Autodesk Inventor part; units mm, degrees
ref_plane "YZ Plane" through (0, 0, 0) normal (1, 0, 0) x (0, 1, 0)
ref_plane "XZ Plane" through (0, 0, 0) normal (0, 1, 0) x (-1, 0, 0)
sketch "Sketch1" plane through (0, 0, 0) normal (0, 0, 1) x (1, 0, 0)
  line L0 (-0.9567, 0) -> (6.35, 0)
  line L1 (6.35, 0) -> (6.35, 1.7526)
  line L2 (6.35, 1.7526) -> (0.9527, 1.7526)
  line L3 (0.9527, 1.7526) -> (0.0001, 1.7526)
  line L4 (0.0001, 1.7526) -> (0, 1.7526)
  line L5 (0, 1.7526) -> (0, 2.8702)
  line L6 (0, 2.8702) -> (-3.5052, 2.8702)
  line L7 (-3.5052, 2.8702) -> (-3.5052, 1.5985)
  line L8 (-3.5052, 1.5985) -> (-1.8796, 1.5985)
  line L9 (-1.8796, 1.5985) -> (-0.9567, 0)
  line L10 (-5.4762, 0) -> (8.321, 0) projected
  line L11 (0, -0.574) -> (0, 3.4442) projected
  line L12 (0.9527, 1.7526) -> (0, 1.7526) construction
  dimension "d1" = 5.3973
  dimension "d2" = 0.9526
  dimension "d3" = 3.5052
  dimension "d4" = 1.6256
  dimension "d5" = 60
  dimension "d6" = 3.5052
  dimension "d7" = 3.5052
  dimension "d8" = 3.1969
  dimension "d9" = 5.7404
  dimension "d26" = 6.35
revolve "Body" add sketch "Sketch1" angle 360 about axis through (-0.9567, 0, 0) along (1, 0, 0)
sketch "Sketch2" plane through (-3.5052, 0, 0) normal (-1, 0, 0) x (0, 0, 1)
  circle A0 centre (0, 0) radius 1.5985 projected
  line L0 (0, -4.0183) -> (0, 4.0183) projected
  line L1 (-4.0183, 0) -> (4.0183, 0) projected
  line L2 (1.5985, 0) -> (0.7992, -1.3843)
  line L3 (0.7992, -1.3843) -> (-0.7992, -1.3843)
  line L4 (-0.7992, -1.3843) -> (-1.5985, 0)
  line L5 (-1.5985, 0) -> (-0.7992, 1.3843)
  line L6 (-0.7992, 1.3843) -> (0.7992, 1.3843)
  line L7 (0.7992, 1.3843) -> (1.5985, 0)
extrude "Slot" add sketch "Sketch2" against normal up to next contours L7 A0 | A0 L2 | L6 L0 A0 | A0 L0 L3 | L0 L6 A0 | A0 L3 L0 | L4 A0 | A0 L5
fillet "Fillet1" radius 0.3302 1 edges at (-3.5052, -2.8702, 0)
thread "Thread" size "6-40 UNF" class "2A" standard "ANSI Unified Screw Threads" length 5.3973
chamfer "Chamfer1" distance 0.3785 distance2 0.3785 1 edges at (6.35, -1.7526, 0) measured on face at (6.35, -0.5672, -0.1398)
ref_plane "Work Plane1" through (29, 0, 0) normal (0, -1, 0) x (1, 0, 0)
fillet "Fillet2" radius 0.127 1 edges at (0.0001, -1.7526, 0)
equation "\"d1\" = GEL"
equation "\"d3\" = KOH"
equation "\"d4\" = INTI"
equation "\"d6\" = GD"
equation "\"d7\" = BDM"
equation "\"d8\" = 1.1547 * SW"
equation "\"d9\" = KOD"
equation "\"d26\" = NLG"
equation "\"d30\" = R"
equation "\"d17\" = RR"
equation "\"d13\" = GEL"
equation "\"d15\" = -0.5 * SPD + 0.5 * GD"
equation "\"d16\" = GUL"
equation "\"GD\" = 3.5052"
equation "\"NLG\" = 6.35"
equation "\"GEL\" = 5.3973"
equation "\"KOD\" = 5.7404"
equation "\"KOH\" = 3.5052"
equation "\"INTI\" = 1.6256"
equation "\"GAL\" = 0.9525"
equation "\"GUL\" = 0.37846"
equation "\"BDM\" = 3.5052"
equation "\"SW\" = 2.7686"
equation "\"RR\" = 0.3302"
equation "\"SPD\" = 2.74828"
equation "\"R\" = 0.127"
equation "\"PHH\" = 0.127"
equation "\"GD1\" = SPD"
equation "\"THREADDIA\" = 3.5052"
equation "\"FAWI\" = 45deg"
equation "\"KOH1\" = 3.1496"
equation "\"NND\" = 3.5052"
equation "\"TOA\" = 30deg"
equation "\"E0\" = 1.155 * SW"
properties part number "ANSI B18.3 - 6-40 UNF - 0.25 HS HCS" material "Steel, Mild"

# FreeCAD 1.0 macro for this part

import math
import FreeCAD as App
import Part
import Sketcher

V = App.Vector
Q = App.Units.Quantity


def edges_at(feature, points):
    """Names of the edges that pass closest to the given points."""
    edges = feature.Shape.Edges
    near = lambda p: min(range(len(edges)), key=lambda i: edges[i].distToShape(Part.Vertex(*p))[0])
    return sorted({f"Edge{near(p) + 1}" for p in points})

doc = App.newDocument("Part")
body = doc.addObject("PartDesign::Body", "Body")

sketch1 = body.newObject("Sketcher::SketchObject", "Sketch")
sketch1.AttachmentSupport = (doc.getObject("XY_Plane"), [""])
sketch1.MapMode = "FlatFace"
sketch1.addGeometry(Part.LineSegment(V(-1.8796, 1.5985, 0), V(-0.9567, 0, 0)), False)
sketch1.addGeometry(Part.LineSegment(V(-0.9567, 0, 0), V(6.35, 0, 0)), False)
sketch1.addGeometry(Part.LineSegment(V(6.35, 0, 0), V(6.35, 1.7526, 0)), False)
sketch1.addGeometry(Part.LineSegment(V(6.35, 1.7526, 0), V(0.0001, 1.7526, 0)), False)
sketch1.addGeometry(Part.LineSegment(V(0.0001, 1.7526, 0), V(0, 2.8702, 0)), False)
sketch1.addGeometry(Part.LineSegment(V(0, 2.8702, 0), V(-3.5052, 2.8702, 0)), False)
sketch1.addGeometry(Part.LineSegment(V(-3.5052, 2.8702, 0), V(-3.5052, 1.5985, 0)), False)
sketch1.addGeometry(Part.LineSegment(V(-3.5052, 1.5985, 0), V(-1.8796, 1.5985, 0)), False)
sketch1.addConstraint(Sketcher.Constraint("Coincident", 0, 2, 1, 1))
sketch1.addConstraint(Sketcher.Constraint("Coincident", 1, 2, 2, 1))
sketch1.addConstraint(Sketcher.Constraint("Coincident", 2, 2, 3, 1))
sketch1.addConstraint(Sketcher.Constraint("Coincident", 3, 2, 4, 1))
sketch1.addConstraint(Sketcher.Constraint("Coincident", 4, 2, 5, 1))
sketch1.addConstraint(Sketcher.Constraint("Coincident", 5, 2, 6, 1))
sketch1.addConstraint(Sketcher.Constraint("Coincident", 6, 2, 7, 1))
sketch1.addConstraint(Sketcher.Constraint("Coincident", 7, 2, 0, 1))
sketch1.addConstraint(Sketcher.Constraint("Horizontal", 1))
sketch1.addConstraint(Sketcher.Constraint("Vertical", 2))
sketch1.addConstraint(Sketcher.Constraint("Horizontal", 3))
sketch1.addConstraint(Sketcher.Constraint("Vertical", 4))
sketch1.addConstraint(Sketcher.Constraint("Horizontal", 5))
sketch1.addConstraint(Sketcher.Constraint("Vertical", 6))
sketch1.addConstraint(Sketcher.Constraint("Horizontal", 7))
sketch1.addConstraint(Sketcher.Constraint("PointOnObject", 0, 2, -1))
sketch1.addConstraint(Sketcher.Constraint("PointOnObject", 3, 2, -2))
sketch1.addConstraint(Sketcher.Constraint("Angle", 0, Q("-59.9998 deg")))
sketch1.addConstraint(Sketcher.Constraint("DistanceX", 3, 2, 3, 1, Q("0.25 in")))
sketch1.addConstraint(Sketcher.Constraint("DistanceX", 5, 2, 5, 1, Q("0.138 in")))
sketch1.addConstraint(Sketcher.Constraint("DistanceX", 7, 1, 7, 2, Q("0.064 in")))
sketch1.addConstraint(Sketcher.Constraint("DistanceY", 2, 1, 2, 2, Q("0.069 in")))
sketch1.addConstraint(Sketcher.Constraint("DistanceY", 4, 1, 4, 2, Q("0.044 in")))
sketch1.addConstraint(Sketcher.Constraint("DistanceX", 1, 1, 1, 2, 7.3067))
revolution = body.newObject("PartDesign::Revolution", "Revolution")
revolution.Profile = sketch1
revolution.ReferenceAxis = (sketch1, ["H_Axis"])
revolution.Angle = 360

sketch2 = body.newObject("Sketcher::SketchObject", "Sketch001")
sketch2.AttachmentSupport = (doc.getObject("YZ_Plane"), [""])
sketch2.MapMode = "FlatFace"
sketch2.AttachmentOffset = App.Placement(V(0, 0, -0.138 * 25.4), App.Rotation())
sketch2.addGeometry(Part.LineSegment(V(1.3843, 0.7992, 0), V(0, 1.5985, 0)), False)
sketch2.addGeometry(Part.ArcOfCircle(Part.Circle(V(0, 0, 0), V(0, 0, 1), 1.5985), math.radians(29.999194), math.radians(90)), False)
sketch2.addGeometry(Part.ArcOfCircle(Part.Circle(V(0, 0, 0), V(0, 0, 1), 1.5985), math.radians(90), math.radians(150.000806)), False)
sketch2.addGeometry(Part.LineSegment(V(0, 1.5985, 0), V(-1.3843, 0.7992, 0)), False)
sketch2.addGeometry(Part.ArcOfCircle(Part.Circle(V(0, 0, 0), V(0, 0, 1), 1.5985), math.radians(-29.999194), math.radians(29.999194)), False)
sketch2.addGeometry(Part.LineSegment(V(1.3843, 0.7992, 0), V(1.3843, -0.7992, 0)), False)
sketch2.addGeometry(Part.LineSegment(V(-1.3843, 0.7992, 0), V(-1.3843, -0.7992, 0)), False)
sketch2.addGeometry(Part.ArcOfCircle(Part.Circle(V(0, 0, 0), V(0, 0, 1), 1.5985), math.radians(150.000806), math.radians(209.999194)), False)
sketch2.addGeometry(Part.LineSegment(V(-1.3843, -0.7992, 0), V(0, -1.5985, 0)), False)
sketch2.addGeometry(Part.ArcOfCircle(Part.Circle(V(0, 0, 0), V(0, 0, 1), 1.5985), math.radians(-150.000806), math.radians(-90)), False)
sketch2.addGeometry(Part.ArcOfCircle(Part.Circle(V(0, 0, 0), V(0, 0, 1), 1.5985), math.radians(-90), math.radians(-29.999194)), False)
sketch2.addGeometry(Part.LineSegment(V(0, -1.5985, 0), V(1.3843, -0.7992, 0)), False)
sketch2.addConstraint(Sketcher.Constraint("Coincident", 0, 1, 1, 1))
sketch2.addConstraint(Sketcher.Constraint("Coincident", 1, 2, 0, 2))
sketch2.addConstraint(Sketcher.Constraint("Coincident", 2, 1, 3, 1))
sketch2.addConstraint(Sketcher.Constraint("Coincident", 3, 2, 2, 2))
sketch2.addConstraint(Sketcher.Constraint("Coincident", 4, 1, 5, 2))
sketch2.addConstraint(Sketcher.Constraint("Coincident", 5, 1, 4, 2))
sketch2.addConstraint(Sketcher.Constraint("Coincident", 6, 1, 7, 1))
sketch2.addConstraint(Sketcher.Constraint("Coincident", 7, 2, 6, 2))
sketch2.addConstraint(Sketcher.Constraint("Coincident", 8, 1, 9, 1))
sketch2.addConstraint(Sketcher.Constraint("Coincident", 9, 2, 8, 2))
sketch2.addConstraint(Sketcher.Constraint("Coincident", 10, 1, 11, 1))
sketch2.addConstraint(Sketcher.Constraint("Coincident", 11, 2, 10, 2))
sketch2.addConstraint(Sketcher.Constraint("Vertical", 5))
sketch2.addConstraint(Sketcher.Constraint("Vertical", 6))
sketch2.addConstraint(Sketcher.Constraint("Coincident", 1, 3, -1, 1))
sketch2.addConstraint(Sketcher.Constraint("Coincident", 2, 3, -1, 1))
sketch2.addConstraint(Sketcher.Constraint("Coincident", 4, 3, -1, 1))
sketch2.addConstraint(Sketcher.Constraint("Coincident", 7, 3, -1, 1))
sketch2.addConstraint(Sketcher.Constraint("Coincident", 9, 3, -1, 1))
sketch2.addConstraint(Sketcher.Constraint("Coincident", 10, 3, -1, 1))
sketch2.addConstraint(Sketcher.Constraint("Coincident", 2, 1, 1, 2))
sketch2.addConstraint(Sketcher.Constraint("Coincident", 5, 1, 0, 1))
sketch2.addConstraint(Sketcher.Constraint("Coincident", 6, 1, 3, 2))
sketch2.addConstraint(Sketcher.Constraint("Coincident", 8, 1, 7, 2))
sketch2.addConstraint(Sketcher.Constraint("Coincident", 10, 1, 9, 2))
sketch2.addConstraint(Sketcher.Constraint("PointOnObject", 1, 2, -2))
sketch2.addConstraint(Sketcher.Constraint("PointOnObject", 9, 2, -2))
sketch2.addConstraint(Sketcher.Constraint("Parallel", 0, 8))
sketch2.addConstraint(Sketcher.Constraint("Parallel", 3, 11))
sketch2.addConstraint(Sketcher.Constraint("Radius", 1, 1.5985))
sketch2.addConstraint(Sketcher.Constraint("DistanceY", 5, 2, 5, 1, 1.5984))
pad1 = body.newObject("PartDesign::Pad", "Pad")
pad1.Profile = sketch2
pad1.Length = 1.7493
doc.recompute()

fillet = body.newObject("PartDesign::Fillet", "Fillet")
fillet.Base = (pad1, edges_at(pad1, [(-3.505, -2.87, 0)]))
fillet.Radius = Q("0.013 in")
doc.recompute()

chamfer = body.newObject("PartDesign::Chamfer", "Chamfer")
chamfer.Base = (fillet, edges_at(fillet, [(6.35, -1.753, 0)]))
chamfer.ChamferType = "Two distances"
chamfer.Size = Q("0.0149016 in")
chamfer.Size2 = Q("0.0149016 in")
doc.recompute()

fillet2 = body.newObject("PartDesign::Fillet", "Fillet001")
fillet2.Base = (chamfer, edges_at(chamfer, [(0, -1.753, 0)]))
fillet2.Radius = Q("0.005 in")

doc.recompute()
